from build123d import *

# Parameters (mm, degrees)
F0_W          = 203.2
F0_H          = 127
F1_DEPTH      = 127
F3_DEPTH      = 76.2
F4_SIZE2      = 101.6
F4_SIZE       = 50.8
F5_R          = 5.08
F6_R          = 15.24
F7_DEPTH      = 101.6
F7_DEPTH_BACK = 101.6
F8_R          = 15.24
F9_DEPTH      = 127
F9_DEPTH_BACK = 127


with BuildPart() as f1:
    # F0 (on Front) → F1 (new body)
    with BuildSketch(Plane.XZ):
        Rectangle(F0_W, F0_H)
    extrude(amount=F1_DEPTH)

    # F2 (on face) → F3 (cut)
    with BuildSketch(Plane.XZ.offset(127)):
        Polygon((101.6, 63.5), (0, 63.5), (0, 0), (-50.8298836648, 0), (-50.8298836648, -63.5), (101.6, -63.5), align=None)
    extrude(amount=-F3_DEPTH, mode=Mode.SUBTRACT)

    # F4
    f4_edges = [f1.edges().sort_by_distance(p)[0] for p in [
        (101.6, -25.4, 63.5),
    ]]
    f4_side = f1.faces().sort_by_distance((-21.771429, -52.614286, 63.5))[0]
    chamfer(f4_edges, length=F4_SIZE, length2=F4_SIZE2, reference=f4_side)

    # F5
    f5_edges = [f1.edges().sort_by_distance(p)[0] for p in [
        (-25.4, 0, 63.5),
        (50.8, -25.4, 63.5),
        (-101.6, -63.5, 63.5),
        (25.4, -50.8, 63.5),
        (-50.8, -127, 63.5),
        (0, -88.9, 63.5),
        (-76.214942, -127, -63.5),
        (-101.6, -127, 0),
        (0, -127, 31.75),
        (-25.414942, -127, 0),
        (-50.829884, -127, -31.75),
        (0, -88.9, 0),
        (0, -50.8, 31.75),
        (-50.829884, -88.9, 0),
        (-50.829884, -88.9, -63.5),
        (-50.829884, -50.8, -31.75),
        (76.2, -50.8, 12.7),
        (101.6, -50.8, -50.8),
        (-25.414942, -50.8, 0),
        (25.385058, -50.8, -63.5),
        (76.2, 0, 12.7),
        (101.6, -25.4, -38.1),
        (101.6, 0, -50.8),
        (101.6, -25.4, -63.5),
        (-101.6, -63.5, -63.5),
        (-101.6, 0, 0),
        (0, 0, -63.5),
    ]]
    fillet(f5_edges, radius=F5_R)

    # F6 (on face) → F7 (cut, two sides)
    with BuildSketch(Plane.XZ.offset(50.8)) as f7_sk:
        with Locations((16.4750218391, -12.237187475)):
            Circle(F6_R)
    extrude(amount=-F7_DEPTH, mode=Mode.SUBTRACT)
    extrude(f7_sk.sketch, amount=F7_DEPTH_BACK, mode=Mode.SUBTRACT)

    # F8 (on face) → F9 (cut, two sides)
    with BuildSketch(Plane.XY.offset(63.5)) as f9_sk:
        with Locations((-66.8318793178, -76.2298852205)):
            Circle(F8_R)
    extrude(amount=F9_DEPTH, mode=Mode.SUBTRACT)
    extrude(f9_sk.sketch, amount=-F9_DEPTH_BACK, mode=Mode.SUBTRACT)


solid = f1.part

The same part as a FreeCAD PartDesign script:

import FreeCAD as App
import Part
import Sketcher

V = App.Vector
Q = App.Units.Quantity


def edges_at(feature, points):
    """Names of the edges that pass closest to the given points."""
    edges = feature.Shape.Edges
    near = lambda p: min(range(len(edges)), key=lambda i: edges[i].distToShape(Part.Vertex(*p))[0])
    return sorted({f"Edge{near(p) + 1}" for p in points})


def add_polygon(sketch, points):
    """Adds a closed chain of lines whose ends are joined by coincident constraints."""
    first, n = sketch.GeometryCount, len(points)
    for a, b in zip(points, points[1:] + points[:1]):
        sketch.addGeometry(Part.LineSegment(App.Vector(*a, 0), App.Vector(*b, 0)), False)
    for i in range(n):
        sketch.addConstraint(Sketcher.Constraint("Coincident", first + i, 2, first + (i + 1) % n, 1))

doc = App.newDocument("Part")
body = doc.addObject("PartDesign::Body", "Body")

# Sketch on XZ plane
sketch1 = body.newObject("Sketcher::SketchObject", "Sketch")
sketch1.AttachmentSupport = (doc.getObject("XZ_Plane"), [""])
sketch1.MapMode = "FlatFace"
add_polygon(sketch1, [(-101.6, 63.5), (-101.6, -63.5), (101.6, -63.5), (101.6, 63.5)])  # lines 0-3
sketch1.addConstraint([
    Sketcher.Constraint("Vertical", 0),
    Sketcher.Constraint("Horizontal", 1),
    Sketcher.Constraint("Vertical", 2),
    Sketcher.Constraint("Horizontal", 3),
    Sketcher.Constraint("Symmetric", 0, 2, 2, 2, -1, 1),
    Sketcher.Constraint("DistanceX", 1, 1, 1, 2, Q("8 in")),
    Sketcher.Constraint("DistanceY", 0, 2, 0, 1, Q("5 in")),
])
pad1 = body.newObject("PartDesign::Pad", "Pad")
pad1.Profile = sketch1
pad1.Length = Q("5 in")

# Sketch on XZ plane
sketch2 = body.newObject("Sketcher::SketchObject", "Sketch001")
sketch2.AttachmentSupport = (doc.getObject("XZ_Plane"), [""])
sketch2.MapMode = "FlatFace"
sketch2.AttachmentOffset = App.Placement(V(0, 0, 5 * 25.4), App.Rotation())
add_polygon(sketch2, [(101.6, 63.5), (0, 63.5), (0, 0), (-50.829884, 0), (-50.829884, -63.5), (101.6, -63.5)])  # lines 0-5
sketch2.addConstraint([
    Sketcher.Constraint("Horizontal", 0),
    Sketcher.Constraint("Vertical", 1),
    Sketcher.Constraint("Horizontal", 2),
    Sketcher.Constraint("Vertical", 3),
    Sketcher.Constraint("Horizontal", 4),
    Sketcher.Constraint("Vertical", 5),
    Sketcher.Constraint("Coincident", 1, 2, -1, 1),
    Sketcher.Constraint("Equal", 1, 3),
    Sketcher.Constraint("DistanceX", 0, 2, 0, 1, Q("4 in")),
    Sketcher.Constraint("DistanceY", 5, 1, 5, 2, Q("5 in")),
    Sketcher.Constraint("DistanceX", 2, 2, 2, 1, 50.829884),
])
pocket1 = body.newObject("PartDesign::Pocket", "Pocket")
pocket1.Profile = sketch2
pocket1.Length = Q("3 in")
doc.recompute()

chamfer = body.newObject("PartDesign::Chamfer", "Chamfer")
chamfer.Base = (pocket1, edges_at(pocket1, [(101.6, -25.4, 63.5)]))
chamfer.ChamferType = "Two distances"
chamfer.Size = Q("2 in")
chamfer.Size2 = Q("4 in")
doc.recompute()

fillet = body.newObject("PartDesign::Fillet", "Fillet")
fillet.Base = (chamfer, ["Edge1"])
fillet.UseAllEdges = True
fillet.Radius = Q("0.2 in")

# Sketch on XZ plane
sketch3 = body.newObject("Sketcher::SketchObject", "Sketch002")
sketch3.AttachmentSupport = (doc.getObject("XZ_Plane"), [""])
sketch3.MapMode = "FlatFace"
sketch3.AttachmentOffset = App.Placement(V(0, 0, 2 * 25.4), App.Rotation())
sketch3.addGeometry(Part.Circle(V(16.475022, -12.237187, 0), V(0, 0, 1), 15.24), False)
sketch3.addConstraint([
    Sketcher.Constraint("Diameter", 0, Q("1.2 in")),
    Sketcher.Constraint("DistanceX", -1, 1, 0, 3, 16.475022),
    Sketcher.Constraint("DistanceY", 0, 3, -1, 1, 12.237187),
])
pocket2 = body.newObject("PartDesign::Pocket", "Pocket001")
pocket2.Profile = sketch3
pocket2.Type = "ThroughAll"
pocket2.Midplane = True

# Sketch on XY plane
sketch4 = body.newObject("Sketcher::SketchObject", "Sketch003")
sketch4.AttachmentSupport = (doc.getObject("XY_Plane"), [""])
sketch4.MapMode = "FlatFace"
sketch4.AttachmentOffset = App.Placement(V(0, 0, 2.5 * 25.4), App.Rotation())
sketch4.addGeometry(Part.Circle(V(-66.831879, -76.229885, 0), V(0, 0, 1), 15.24), False)
sketch4.addConstraint([
    Sketcher.Constraint("Diameter", 0, Q("1.2 in")),
    Sketcher.Constraint("DistanceX", 0, 3, -1, 1, 66.831879),
    Sketcher.Constraint("DistanceY", 0, 3, -1, 1, 76.229885),
])
pocket3 = body.newObject("PartDesign::Pocket", "Pocket002")
pocket3.Profile = sketch4
pocket3.Type = "ThroughAll"
pocket3.Midplane = True

doc.recompute()
